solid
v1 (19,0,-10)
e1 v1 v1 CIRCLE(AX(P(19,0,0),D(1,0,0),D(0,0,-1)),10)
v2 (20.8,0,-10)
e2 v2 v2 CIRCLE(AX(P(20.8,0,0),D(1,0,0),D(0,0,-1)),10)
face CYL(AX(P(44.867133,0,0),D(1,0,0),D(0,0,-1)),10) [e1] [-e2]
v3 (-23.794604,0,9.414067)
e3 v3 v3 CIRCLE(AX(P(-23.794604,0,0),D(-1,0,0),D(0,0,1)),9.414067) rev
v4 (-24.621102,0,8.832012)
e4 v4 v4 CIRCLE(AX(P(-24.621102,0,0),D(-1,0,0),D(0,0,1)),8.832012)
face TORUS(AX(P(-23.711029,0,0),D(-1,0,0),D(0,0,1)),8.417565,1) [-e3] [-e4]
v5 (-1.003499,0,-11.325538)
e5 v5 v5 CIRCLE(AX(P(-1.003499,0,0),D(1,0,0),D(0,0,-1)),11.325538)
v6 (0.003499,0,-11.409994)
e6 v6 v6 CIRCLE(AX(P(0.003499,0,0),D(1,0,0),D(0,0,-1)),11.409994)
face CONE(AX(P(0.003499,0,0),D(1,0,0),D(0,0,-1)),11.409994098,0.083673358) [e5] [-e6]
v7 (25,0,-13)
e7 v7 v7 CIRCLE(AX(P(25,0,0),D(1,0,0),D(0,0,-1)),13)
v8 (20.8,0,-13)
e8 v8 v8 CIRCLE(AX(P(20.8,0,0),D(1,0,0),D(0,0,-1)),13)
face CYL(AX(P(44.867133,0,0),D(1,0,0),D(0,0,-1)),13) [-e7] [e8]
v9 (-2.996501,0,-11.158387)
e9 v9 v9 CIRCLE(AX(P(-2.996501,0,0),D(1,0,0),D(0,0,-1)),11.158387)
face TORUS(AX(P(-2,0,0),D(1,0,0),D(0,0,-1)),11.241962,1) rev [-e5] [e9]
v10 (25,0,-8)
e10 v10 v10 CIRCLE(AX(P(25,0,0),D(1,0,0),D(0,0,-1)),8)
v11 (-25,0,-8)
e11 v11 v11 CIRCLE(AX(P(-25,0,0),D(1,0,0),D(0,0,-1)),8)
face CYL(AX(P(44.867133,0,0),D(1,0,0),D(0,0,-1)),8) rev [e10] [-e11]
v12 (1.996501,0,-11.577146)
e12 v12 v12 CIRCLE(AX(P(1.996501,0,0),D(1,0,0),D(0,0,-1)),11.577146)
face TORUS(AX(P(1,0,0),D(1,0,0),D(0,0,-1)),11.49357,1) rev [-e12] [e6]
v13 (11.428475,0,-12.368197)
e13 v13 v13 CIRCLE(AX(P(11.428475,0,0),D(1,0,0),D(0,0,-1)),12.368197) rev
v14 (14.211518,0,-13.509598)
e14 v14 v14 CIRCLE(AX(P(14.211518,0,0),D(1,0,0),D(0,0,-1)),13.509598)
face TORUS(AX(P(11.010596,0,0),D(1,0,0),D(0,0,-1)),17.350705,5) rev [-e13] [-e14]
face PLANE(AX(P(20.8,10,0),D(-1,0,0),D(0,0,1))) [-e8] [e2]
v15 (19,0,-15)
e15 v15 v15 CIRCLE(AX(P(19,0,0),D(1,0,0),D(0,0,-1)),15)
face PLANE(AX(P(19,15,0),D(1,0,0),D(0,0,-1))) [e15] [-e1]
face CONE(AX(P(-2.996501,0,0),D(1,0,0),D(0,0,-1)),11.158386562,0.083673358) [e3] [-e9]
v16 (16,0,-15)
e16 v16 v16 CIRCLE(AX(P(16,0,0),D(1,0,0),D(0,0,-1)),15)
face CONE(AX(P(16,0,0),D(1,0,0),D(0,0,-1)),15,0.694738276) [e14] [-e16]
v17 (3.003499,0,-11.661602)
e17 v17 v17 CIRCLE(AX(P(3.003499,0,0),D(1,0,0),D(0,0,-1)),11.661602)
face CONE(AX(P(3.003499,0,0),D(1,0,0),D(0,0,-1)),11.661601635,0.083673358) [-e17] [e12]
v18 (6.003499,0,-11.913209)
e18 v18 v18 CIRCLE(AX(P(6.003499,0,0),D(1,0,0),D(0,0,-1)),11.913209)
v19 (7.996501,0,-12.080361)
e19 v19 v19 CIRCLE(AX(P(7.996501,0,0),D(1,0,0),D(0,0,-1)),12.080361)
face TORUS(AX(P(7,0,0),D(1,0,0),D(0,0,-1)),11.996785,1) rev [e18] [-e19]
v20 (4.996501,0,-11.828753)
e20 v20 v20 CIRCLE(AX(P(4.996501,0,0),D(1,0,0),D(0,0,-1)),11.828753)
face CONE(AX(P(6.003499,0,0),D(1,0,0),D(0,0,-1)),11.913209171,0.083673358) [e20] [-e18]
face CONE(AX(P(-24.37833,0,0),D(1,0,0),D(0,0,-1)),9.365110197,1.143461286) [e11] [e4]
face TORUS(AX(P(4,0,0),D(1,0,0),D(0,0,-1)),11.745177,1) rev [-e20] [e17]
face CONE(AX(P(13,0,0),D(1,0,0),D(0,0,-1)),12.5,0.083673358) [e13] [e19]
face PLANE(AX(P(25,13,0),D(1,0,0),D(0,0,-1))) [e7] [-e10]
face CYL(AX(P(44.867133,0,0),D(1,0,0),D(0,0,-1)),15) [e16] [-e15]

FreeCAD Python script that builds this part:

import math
import FreeCAD as App
import Part
import Sketcher


def edges_at(feature, points):
    """Names of the edges that pass closest to the given points."""
    edges = feature.Shape.Edges
    near = lambda p: min(range(len(edges)), key=lambda i: edges[i].distToShape(Part.Vertex(*p))[0])
    return sorted({f"Edge{near(p) + 1}" for p in points})

doc = App.newDocument("Part")
params = doc.addObject("Spreadsheet::Sheet", "Params")
for row, (alias, value) in enumerate([
    ("sketch1_radius", "1 mm"),
    ("sketch1_radius2", "1 mm"),
    ("sketch1_radius3", "1 mm"),
    ("sketch1_radius4", "1 mm"),
    ("sketch1_width", "50 mm"),
    ("revolution_angle", "360 deg"),
    ("fillet_radius", "1 mm"),
    ("fillet2_radius", "5 mm"),
], start=1):
    params.set(f"A{row}", alias)
    params.set(f"B{row}", "=" + value)
    params.setAlias(f"B{row}", alias)

body = doc.addObject("PartDesign::Body", "Body")

# Sketch on XY plane
sketch1 = body.newObject("Sketcher::SketchObject", "Sketch")
sketch1.AttachmentSupport = (doc.getObject("XY_Plane"), [""])
sketch1.MapMode = "FlatFace"
sketch1.addGeometry([
    Part.LineSegment(App.Vector(-2.996501, 11.158387, 0), App.Vector(-24.37833, 9.36511, 0)),  # 0
    Part.LineSegment(App.Vector(-24.37833, 9.36511, 0), App.Vector(-25, 8, 0)),  # 1
    Part.LineSegment(App.Vector(-25, 8, 0), App.Vector(25, 8, 0)),  # 2
    Part.LineSegment(App.Vector(25, 8, 0), App.Vector(25, 13, 0)),  # 3
    Part.LineSegment(App.Vector(25, 13, 0), App.Vector(20.8, 13, 0)),  # 4
    Part.LineSegment(App.Vector(20.8, 13, 0), App.Vector(20.8, 10, 0)),  # 5
    Part.LineSegment(App.Vector(20.8, 10, 0), App.Vector(19, 10, 0)),  # 6
    Part.LineSegment(App.Vector(19, 10, 0), App.Vector(19, 15, 0)),  # 7
    Part.LineSegment(App.Vector(19, 15, 0), App.Vector(16, 15, 0)),  # 8
    Part.LineSegment(App.Vector(16, 15, 0), App.Vector(13, 12.5, 0)),  # 9
    Part.LineSegment(App.Vector(13, 12.5, 0), App.Vector(7.996501, 12.080361, 0)),  # 10
    Part.ArcOfCircle(Part.Circle(App.Vector(7, 11.996785, 0), App.Vector(0, 0, 1), 1), math.radians(-175.20587), math.radians(4.79413)),  # 11
    Part.LineSegment(App.Vector(6.003499, 11.913209, 0), App.Vector(4.996501, 11.828753, 0)),  # 12
    Part.ArcOfCircle(Part.Circle(App.Vector(4, 11.745177, 0), App.Vector(0, 0, 1), 1), math.radians(-175.20587), math.radians(4.79413)),  # 13
    Part.LineSegment(App.Vector(3.003499, 11.661602, 0), App.Vector(1.996501, 11.577146, 0)),  # 14
    Part.ArcOfCircle(Part.Circle(App.Vector(1, 11.49357, 0), App.Vector(0, 0, 1), 1), math.radians(-175.20587), math.radians(4.79413)),  # 15
    Part.LineSegment(App.Vector(0.003499, 11.409994, 0), App.Vector(-1.003499, 11.325538, 0)),  # 16
    Part.ArcOfCircle(Part.Circle(App.Vector(-2, 11.241962, 0), App.Vector(0, 0, 1), 1), math.radians(-175.20587), math.radians(4.79413)),  # 17
], False)
sketch1.addConstraint([
    Sketcher.Constraint("Coincident", 0, 2, 1, 1),
    Sketcher.Constraint("Coincident", 1, 2, 2, 1),
    Sketcher.Constraint("Coincident", 2, 2, 3, 1),
    Sketcher.Constraint("Coincident", 3, 2, 4, 1),
    Sketcher.Constraint("Coincident", 4, 2, 5, 1),
    Sketcher.Constraint("Coincident", 5, 2, 6, 1),
    Sketcher.Constraint("Coincident", 6, 2, 7, 1),
    Sketcher.Constraint("Coincident", 7, 2, 8, 1),
    Sketcher.Constraint("Coincident", 8, 2, 9, 1),
    Sketcher.Constraint("Coincident", 9, 2, 10, 1),
    Sketcher.Constraint("Coincident", 10, 2, 11, 2),
    Sketcher.Constraint("Coincident", 11, 1, 12, 1),
    Sketcher.Constraint("Coincident", 12, 2, 13, 2),
    Sketcher.Constraint("Coincident", 13, 1, 14, 1),
    Sketcher.Constraint("Coincident", 14, 2, 15, 2),
    Sketcher.Constraint("Coincident", 15, 1, 16, 1),
    Sketcher.Constraint("Coincident", 16, 2, 17, 2),
    Sketcher.Constraint("Coincident", 17, 1, 0, 1),
    Sketcher.Constraint("Horizontal", 2),
    Sketcher.Constraint("Vertical", 3),
    Sketcher.Constraint("Horizontal", 4),
    Sketcher.Constraint("Vertical", 5),
    Sketcher.Constraint("Horizontal", 6),
    Sketcher.Constraint("Vertical", 7),
    Sketcher.Constraint("Horizontal", 8),
    Sketcher.Constraint("Radius", 11, 1.0),
    Sketcher.Constraint("Radius", 13, 1.0),
    Sketcher.Constraint("Radius", 15, 1.0),
    Sketcher.Constraint("Radius", 17, 1.0),
    Sketcher.Constraint("DistanceX", 2, 1, 2, 2, 50.0),
    Sketcher.Constraint("DistanceX", 8, 2, 8, 1, 3.0),
    Sketcher.Constraint("DistanceY", 3, 1, 3, 2, 5.0),
    Sketcher.Constraint("DistanceY", 5, 2, 5, 1, 3.0),
    Sketcher.Constraint("DistanceY", 7, 1, 7, 2, 5.0),
    Sketcher.Constraint("DistanceX", 4, 2, 4, 1, 4.2),
    Sketcher.Constraint("DistanceX", 6, 2, 6, 1, 1.8),
    Sketcher.Constraint("DistanceX", -1, 1, 11, 3, 7.0),
    Sketcher.Constraint("DistanceX", -1, 1, 13, 3, 4.0),
    Sketcher.Constraint("DistanceX", -1, 1, 15, 3, 1.0),
    Sketcher.Constraint("DistanceX", 17, 3, -1, 1, 2.0),
    Sketcher.Constraint("DistanceX", 1, 2, -1, 1, 25.0),
    Sketcher.Constraint("DistanceY", -1, 1, 1, 2, 8.0),
    Sketcher.Constraint("DistanceX", -1, 1, 9, 2, 13.0),
    Sketcher.Constraint("DistanceX", 12, 2, 10, 2, 3.0),
    Sketcher.Constraint("DistanceX", 13, 1, 11, 1, 3.0),
    Sketcher.Constraint("DistanceX", 14, 2, 12, 2, 3.0),
    Sketcher.Constraint("DistanceX", 15, 1, 13, 1, 3.0),
    Sketcher.Constraint("DistanceX", 16, 2, 14, 2, 3.0),
    Sketcher.Constraint("DistanceX", 17, 1, 15, 1, 3.0),
    Sketcher.Constraint("Distance", 1, 1.5),
    Sketcher.Constraint("DistanceY", -1, 1, 9, 2, 12.5),
    Sketcher.Constraint("DistanceX", -1, 1, 10, 2, 7.996501),
    Sketcher.Constraint("DistanceX", -1, 1, 11, 1, 6.003499),
    Sketcher.Constraint("DistanceY", -1, 1, 13, 1, 11.661602),
    Sketcher.Constraint("DistanceY", -1, 1, 15, 3, 11.49357),
    Sketcher.Constraint("DistanceX", 0, 2, -1, 1, 24.37833),
    Sketcher.Constraint("DistanceY", -1, 1, 10, 2, 12.080361),
    Sketcher.Constraint("DistanceY", -1, 1, 16, 2, 11.325538),
])
sketch1.setExpression("Constraints[25]", "Params.sketch1_radius")
sketch1.setExpression("Constraints[26]", "Params.sketch1_radius2")
sketch1.setExpression("Constraints[27]", "Params.sketch1_radius3")
sketch1.setExpression("Constraints[28]", "Params.sketch1_radius4")
sketch1.setExpression("Constraints[29]", "Params.sketch1_width")
revolution = body.newObject("PartDesign::Revolution", "Revolution")
revolution.Profile = sketch1
revolution.ReferenceAxis = (sketch1, ["H_Axis"])
revolution.setExpression("Angle", "Params.revolution_angle")
doc.recompute()

fillet = body.newObject("PartDesign::Fillet", "Fillet")
fillet.Base = (revolution, edges_at(revolution, [(-24.378, 0, 9.365)]))
fillet.setExpression("Radius", "Params.fillet_radius")
doc.recompute()

fillet2 = body.newObject("PartDesign::Fillet", "Fillet001")
fillet2.Base = (fillet, edges_at(fillet, [(13, 0, 12.5)]))
fillet2.setExpression("Radius", "Params.fillet2_radius")

doc.recompute()
